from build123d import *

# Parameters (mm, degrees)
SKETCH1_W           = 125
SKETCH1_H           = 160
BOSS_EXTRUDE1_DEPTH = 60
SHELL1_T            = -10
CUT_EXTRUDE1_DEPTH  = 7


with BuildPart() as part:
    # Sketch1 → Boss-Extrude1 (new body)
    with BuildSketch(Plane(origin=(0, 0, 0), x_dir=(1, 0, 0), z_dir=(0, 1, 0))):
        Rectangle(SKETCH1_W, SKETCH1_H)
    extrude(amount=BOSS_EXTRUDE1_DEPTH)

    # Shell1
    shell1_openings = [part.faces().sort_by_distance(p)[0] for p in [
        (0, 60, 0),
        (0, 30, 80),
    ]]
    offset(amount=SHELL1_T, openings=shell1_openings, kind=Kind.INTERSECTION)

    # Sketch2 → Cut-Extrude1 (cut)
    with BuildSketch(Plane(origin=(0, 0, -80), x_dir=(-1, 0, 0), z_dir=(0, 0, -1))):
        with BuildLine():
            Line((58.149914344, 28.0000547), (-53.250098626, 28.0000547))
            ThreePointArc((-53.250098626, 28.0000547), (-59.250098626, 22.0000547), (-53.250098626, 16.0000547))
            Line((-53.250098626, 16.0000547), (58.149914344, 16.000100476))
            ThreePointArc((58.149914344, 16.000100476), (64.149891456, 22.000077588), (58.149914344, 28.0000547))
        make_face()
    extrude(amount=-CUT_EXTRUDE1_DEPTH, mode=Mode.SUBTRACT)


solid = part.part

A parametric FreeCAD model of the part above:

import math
import FreeCAD as App
import Part
import Sketcher

V = App.Vector
Q = App.Units.Quantity


def faces_at(feature, points):
    """Names of the faces that lie closest to the given points."""
    faces = feature.Shape.Faces
    near = lambda p: min(range(len(faces)), key=lambda i: faces[i].distToShape(Part.Vertex(*p))[0])
    return sorted({f"Face{near(p) + 1}" for p in points})


def add_polygon(sketch, points):
    """Adds a closed chain of lines whose ends are joined by coincident constraints."""
    first, n = sketch.GeometryCount, len(points)
    for a, b in zip(points, points[1:] + points[:1]):
        sketch.addGeometry(Part.LineSegment(App.Vector(*a, 0), App.Vector(*b, 0)), False)
    for i in range(n):
        sketch.addConstraint(Sketcher.Constraint("Coincident", first + i, 2, first + (i + 1) % n, 1))

doc = App.newDocument("Part")
params = doc.addObject("Spreadsheet::Sheet", "Params")
for row, (alias, value) in enumerate([
    ("sketch1_width", "125 mm"),
    ("sketch1_height", "160 mm"),
    ("pad1_length", "60 mm"),
    ("thickness_wall", "10 mm"),
    ("sketch2_radius", "6 mm"),
    ("pocket1_length", "7 mm"),
], start=1):
    params.set(f"A{row}", alias)
    params.set(f"B{row}", "=" + value)
    params.setAlias(f"B{row}", alias)

body = doc.addObject("PartDesign::Body", "Body")

sketch1 = body.newObject("Sketcher::SketchObject", "Sketch")
sketch1.AttachmentSupport = (doc.getObject("XZ_Plane"), [""])
sketch1.MapMode = "FlatFace"
add_polygon(sketch1, [(-62, -80), (-62, 80), (62, 80), (62, -80)])
sketch1.addConstraint([
    Sketcher.Constraint("Vertical", 0),
    Sketcher.Constraint("Horizontal", 1),
    Sketcher.Constraint("Vertical", 2),
    Sketcher.Constraint("Horizontal", 3),
    Sketcher.Constraint("Symmetric", 0, 2, 2, 2, -1, 1),
    Sketcher.Constraint("DistanceX", 1, 1, 1, 2, Q("125 mm")),
    Sketcher.Constraint("DistanceY", 0, 1, 0, 2, Q("160 mm")),
])
sketch1.setExpression("Constraints[9]", "Params.sketch1_width")
sketch1.setExpression("Constraints[10]", "Params.sketch1_height")
pad1 = body.newObject("PartDesign::Pad", "Pad")
pad1.Profile = sketch1
pad1.setExpression("Length", "Params.pad1_length")
pad1.Reversed = True
doc.recompute()

thickness = body.newObject("PartDesign::Thickness", "Thickness")
thickness.Base = (pad1, faces_at(pad1, [(0, 60, 0), (0, 30, 80)]))
thickness.setExpression("Value", "Params.thickness_wall")
thickness.Reversed = True
thickness.Join = "Intersection"

sketch2 = body.newObject("Sketcher::SketchObject", "Sketch001")
sketch2.AttachmentSupport = (doc.getObject("XY_Plane"), [""])
sketch2.MapMode = "FlatFace"
sketch2.AttachmentOffset = App.Placement(V(0, 0, -80), App.Rotation())
sketch2.addGeometry([
    Part.LineSegment(V(-58.149914, 28.000055, 0), V(53.250099, 28.000055, 0)),
    Part.ArcOfCircle(Part.Circle(V(53.250099, 22.000055, 0), V(0, 0, 1), 6), math.radians(-90), math.radians(90)),
    Part.LineSegment(V(53.250099, 16.000055, 0), V(-58.149914, 16.0001, 0)),
    Part.ArcOfCircle(Part.Circle(V(-58.149914, 22.000078, 0), V(0, 0, 1), 5.999977), math.radians(90), math.radians(270)),
], False)
sketch2.addConstraint([
    Sketcher.Constraint("Coincident", 0, 2, 1, 2),
    Sketcher.Constraint("Coincident", 1, 1, 2, 1),
    Sketcher.Constraint("Coincident", 2, 2, 3, 2),
    Sketcher.Constraint("Coincident", 3, 1, 0, 1),
    Sketcher.Constraint("Horizontal", 0),
    Sketcher.Constraint("Radius", 1, Q("6 mm")),
    Sketcher.Constraint("Radius", 3, Q("5.999977 mm")),
    Sketcher.Constraint("DistanceX", -1, 1, 1, 3, Q("53.250099 mm")),
    Sketcher.Constraint("DistanceX", -1, 1, 0, 2, Q("53.250099 mm")),
    Sketcher.Constraint("DistanceX", -1, 1, 1, 1, Q("53.250099 mm")),
    Sketcher.Constraint("DistanceY", -1, 1, 2, 2, Q("16.0001 mm")),
    Sketcher.Constraint("DistanceX", 0, 1, 0, 2, Q("111.400013 mm")),
    Sketcher.Constraint("Distance", 2, Q("111.400013 mm")),
    Sketcher.Constraint("DistanceX", 3, 3, -1, 1, Q("58.149914 mm")),
])
sketch2.setExpression("Constraints[5]", "Params.sketch2_radius")
pocket1 = body.newObject("PartDesign::Pocket", "Pocket")
pocket1.Profile = sketch2
pocket1.setExpression("Length", "Params.pocket1_length")
pocket1.Reversed = True

doc.recompute()
